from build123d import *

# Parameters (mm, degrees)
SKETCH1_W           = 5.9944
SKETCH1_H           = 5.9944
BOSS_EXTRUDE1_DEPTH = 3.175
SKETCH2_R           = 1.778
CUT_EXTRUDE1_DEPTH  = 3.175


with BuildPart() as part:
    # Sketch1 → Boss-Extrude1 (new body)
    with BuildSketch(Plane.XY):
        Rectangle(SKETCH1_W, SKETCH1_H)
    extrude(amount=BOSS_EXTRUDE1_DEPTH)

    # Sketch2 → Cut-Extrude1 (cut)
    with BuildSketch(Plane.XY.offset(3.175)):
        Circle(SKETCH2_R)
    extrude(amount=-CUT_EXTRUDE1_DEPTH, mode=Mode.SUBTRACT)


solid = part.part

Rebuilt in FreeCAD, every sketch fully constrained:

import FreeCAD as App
import Part
import Sketcher
Q = App.Units.Quantity


def add_polygon(sketch, points):
    """Adds a closed chain of lines whose ends are joined by coincident constraints."""
    first, n = sketch.GeometryCount, len(points)
    for a, b in zip(points, points[1:] + points[:1]):
        sketch.addGeometry(Part.LineSegment(App.Vector(*a, 0), App.Vector(*b, 0)), False)
    for i in range(n):
        sketch.addConstraint(Sketcher.Constraint("Coincident", first + i, 2, first + (i + 1) % n, 1))

doc = App.newDocument("Part")
params = doc.addObject("Spreadsheet::Sheet", "Params")
for row, (alias, value) in enumerate([
    ("sketch1_width", "0.236 in"),
    ("pad1_length", "0.125 in"),
    ("sketch2_diameter", "0.14 in"),
    ("pocket1_length", "0.125 in"),
], start=1):
    params.set(f"A{row}", alias)
    params.set(f"B{row}", "=" + value)
    params.setAlias(f"B{row}", alias)

body = doc.addObject("PartDesign::Body", "Body")

# Sketch on XY plane
sketch1 = doc.addObject("Sketcher::SketchObject", "Sketch")
body.addObject(sketch1)
sketch1.AttachmentSupport = (doc.XY_Plane, [""])
sketch1.MapMode = "FlatFace"
add_polygon(sketch1, [(-3, 3), (-3, -3), (3, -3), (3, 3)])  # lines 0-3
sketch1.addConstraint([
    Sketcher.Constraint("Vertical", 0),
    Sketcher.Constraint("Horizontal", 1),
    Sketcher.Constraint("Vertical", 2),
    Sketcher.Constraint("Horizontal", 3),
    Sketcher.Constraint("Symmetric", 0, 2, 2, 2, -1, 1),
    Sketcher.Constraint("Equal", 3, 0),
    Sketcher.Constraint("DistanceX", 1, 1, 1, 2, Q("0.236 in")),
])
sketch1.setExpression("Constraints[10]", "Params.sketch1_width")
pad1 = doc.addObject("PartDesign::Pad", "Pad")
body.addObject(pad1)
pad1.Profile = sketch1
pad1.setExpression("Length", "Params.pad1_length")

# Sketch on XY plane
sketch2 = doc.addObject("Sketcher::SketchObject", "Sketch001")
body.addObject(sketch2)
sketch2.AttachmentSupport = (doc.XY_Plane, [""])
sketch2.MapMode = "FlatFace"
sketch2.AttachmentOffset = App.Placement(App.Vector(0, 0, 0.125 * 25.4), App.Rotation())
sketch2.addGeometry(Part.Circle(App.Vector(0, 0, 0), App.Vector(0, 0, 1), 1.8), False)
sketch2.addConstraint([
    Sketcher.Constraint("Coincident", 0, 3, -1, 1),
    Sketcher.Constraint("Diameter", 0, Q("0.14 in")),
])
sketch2.setExpression("Constraints[1]", "Params.sketch2_diameter")
pocket1 = doc.addObject("PartDesign::Pocket", "Pocket")
body.addObject(pocket1)
pocket1.Profile = sketch2
pocket1.setExpression("Length", "Params.pocket1_length")

doc.recompute()
